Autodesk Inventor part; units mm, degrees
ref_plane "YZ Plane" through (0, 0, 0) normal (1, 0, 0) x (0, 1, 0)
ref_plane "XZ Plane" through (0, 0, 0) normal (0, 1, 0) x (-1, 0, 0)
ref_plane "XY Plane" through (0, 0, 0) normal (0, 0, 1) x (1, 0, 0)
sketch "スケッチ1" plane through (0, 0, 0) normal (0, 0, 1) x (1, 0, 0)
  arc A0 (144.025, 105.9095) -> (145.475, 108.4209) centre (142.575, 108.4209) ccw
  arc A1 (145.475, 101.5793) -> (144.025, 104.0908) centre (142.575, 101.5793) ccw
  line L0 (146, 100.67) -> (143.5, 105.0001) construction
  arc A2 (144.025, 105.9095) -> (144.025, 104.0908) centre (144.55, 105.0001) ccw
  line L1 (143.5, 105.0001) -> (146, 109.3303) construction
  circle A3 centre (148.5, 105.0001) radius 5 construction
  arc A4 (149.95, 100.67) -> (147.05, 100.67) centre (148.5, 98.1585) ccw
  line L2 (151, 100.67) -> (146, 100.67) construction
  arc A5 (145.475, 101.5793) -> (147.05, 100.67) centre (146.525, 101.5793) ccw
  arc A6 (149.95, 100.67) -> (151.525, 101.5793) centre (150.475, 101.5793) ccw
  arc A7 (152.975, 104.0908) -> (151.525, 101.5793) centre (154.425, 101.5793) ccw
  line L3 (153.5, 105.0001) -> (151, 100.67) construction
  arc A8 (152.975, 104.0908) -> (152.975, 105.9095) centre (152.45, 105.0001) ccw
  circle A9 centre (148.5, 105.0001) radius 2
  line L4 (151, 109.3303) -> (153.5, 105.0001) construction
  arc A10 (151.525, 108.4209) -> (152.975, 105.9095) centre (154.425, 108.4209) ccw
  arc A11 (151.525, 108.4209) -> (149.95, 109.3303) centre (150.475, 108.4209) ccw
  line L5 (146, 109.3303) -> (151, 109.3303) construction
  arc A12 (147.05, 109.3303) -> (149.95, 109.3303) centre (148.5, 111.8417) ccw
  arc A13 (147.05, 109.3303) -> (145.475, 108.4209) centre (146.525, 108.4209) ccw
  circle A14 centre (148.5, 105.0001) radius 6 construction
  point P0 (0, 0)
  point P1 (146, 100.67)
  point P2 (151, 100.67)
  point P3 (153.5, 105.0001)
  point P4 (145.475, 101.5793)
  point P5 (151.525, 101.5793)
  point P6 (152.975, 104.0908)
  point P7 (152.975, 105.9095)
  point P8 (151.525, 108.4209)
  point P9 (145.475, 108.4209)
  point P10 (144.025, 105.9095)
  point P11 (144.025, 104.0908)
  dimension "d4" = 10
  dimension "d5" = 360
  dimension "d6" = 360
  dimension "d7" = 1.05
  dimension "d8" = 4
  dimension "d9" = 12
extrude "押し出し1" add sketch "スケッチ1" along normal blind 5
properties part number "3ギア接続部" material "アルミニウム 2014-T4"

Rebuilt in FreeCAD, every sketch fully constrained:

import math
import FreeCAD as App
import Part
import Sketcher

V = App.Vector

doc = App.newDocument("Part")
body = doc.addObject("PartDesign::Body", "Body")

# Sketch on XY plane
sketch1 = body.newObject("Sketcher::SketchObject", "Sketch")
sketch1.AttachmentSupport = (doc.getObject("XY_Plane"), [""])
sketch1.MapMode = "FlatFace"
sketch1.addGeometry(Part.ArcOfCircle(Part.Circle(V(142.6, 108.4, 0), V(0, 0, 1), 2.9), math.radians(-60), math.radians(0)), False)
sketch1.addGeometry(Part.ArcOfCircle(Part.Circle(V(144.6, 105, 0), V(0, 0, 1), 1.1), math.radians(120), math.radians(240)), False)
sketch1.addGeometry(Part.ArcOfCircle(Part.Circle(V(142.6, 101.6, 0), V(0, 0, 1), 2.9), math.radians(0), math.radians(60)), False)
sketch1.addGeometry(Part.ArcOfCircle(Part.Circle(V(146.5, 101.6, 0), V(0, 0, 1), 1.1), math.radians(180), math.radians(300)), False)
sketch1.addGeometry(Part.ArcOfCircle(Part.Circle(V(148.5, 98.2, 0), V(0, 0, 1), 2.9), math.radians(60), math.radians(120)), False)
sketch1.addGeometry(Part.ArcOfCircle(Part.Circle(V(150.5, 101.6, 0), V(0, 0, 1), 1), math.radians(-120), math.radians(0)), False)
sketch1.addGeometry(Part.ArcOfCircle(Part.Circle(V(154.4, 101.6, 0), V(0, 0, 1), 2.9), math.radians(120), math.radians(180)), False)
sketch1.addGeometry(Part.ArcOfCircle(Part.Circle(V(152.4, 105, 0), V(0, 0, 1), 1), math.radians(-60), math.radians(60)), False)
sketch1.addGeometry(Part.ArcOfCircle(Part.Circle(V(154.4, 108.4, 0), V(0, 0, 1), 2.9), math.radians(180), math.radians(240)), False)
sketch1.addGeometry(Part.ArcOfCircle(Part.Circle(V(150.5, 108.4, 0), V(0, 0, 1), 1.1), math.radians(0), math.radians(120)), False)
sketch1.addGeometry(Part.ArcOfCircle(Part.Circle(V(148.5, 111.8, 0), V(0, 0, 1), 2.9), math.radians(-120), math.radians(-60)), False)
sketch1.addGeometry(Part.ArcOfCircle(Part.Circle(V(146.5, 108.4, 0), V(0, 0, 1), 1.1), math.radians(60), math.radians(180)), False)
sketch1.addGeometry(Part.Circle(V(148.5, 105, 0), V(0, 0, 1), 2), False)
sketch1.addConstraint(Sketcher.Constraint("Tangent", 0, 1, 1, 1))
sketch1.addConstraint(Sketcher.Constraint("Tangent", 1, 2, 2, 2))
sketch1.addConstraint(Sketcher.Constraint("Tangent", 2, 1, 3, 1))
sketch1.addConstraint(Sketcher.Constraint("Tangent", 3, 2, 4, 2))
sketch1.addConstraint(Sketcher.Constraint("Tangent", 4, 1, 5, 1))
sketch1.addConstraint(Sketcher.Constraint("Tangent", 5, 2, 6, 2))
sketch1.addConstraint(Sketcher.Constraint("Tangent", 6, 1, 7, 1))
sketch1.addConstraint(Sketcher.Constraint("Tangent", 7, 2, 8, 2))
sketch1.addConstraint(Sketcher.Constraint("Tangent", 8, 1, 9, 1))
sketch1.addConstraint(Sketcher.Constraint("Tangent", 9, 2, 10, 2))
sketch1.addConstraint(Sketcher.Constraint("Tangent", 10, 1, 11, 1))
sketch1.addConstraint(Sketcher.Constraint("Tangent", 11, 2, 0, 2))
sketch1.addConstraint(Sketcher.Constraint("Equal", 0, 2))
sketch1.addConstraint(Sketcher.Constraint("Equal", 1, 3))
sketch1.addConstraint(Sketcher.Constraint("Equal", 2, 4))
sketch1.addConstraint(Sketcher.Constraint("Equal", 3, 5))
sketch1.addConstraint(Sketcher.Constraint("Equal", 4, 6))
sketch1.addConstraint(Sketcher.Constraint("Equal", 5, 7))
sketch1.addConstraint(Sketcher.Constraint("Equal", 6, 8))
sketch1.addConstraint(Sketcher.Constraint("Equal", 7, 9))
sketch1.addConstraint(Sketcher.Constraint("Equal", 8, 10))
sketch1.addConstraint(Sketcher.Constraint("Equal", 9, 11))
sketch1.addConstraint(Sketcher.Constraint("Horizontal", 2, 3, 3, 3))
sketch1.addConstraint(Sketcher.Constraint("Horizontal", 3, 3, 5, 3))
sketch1.addConstraint(Sketcher.Constraint("Horizontal", 5, 3, 6, 3))
sketch1.addConstraint(Sketcher.Constraint("Horizontal", 1, 3, 7, 3))
sketch1.addConstraint(Sketcher.Constraint("Horizontal", 0, 3, 8, 3))
sketch1.addConstraint(Sketcher.Constraint("Horizontal", 8, 3, 9, 3))
sketch1.addConstraint(Sketcher.Constraint("Horizontal", 9, 3, 11, 3))
sketch1.addConstraint(Sketcher.Constraint("Horizontal", 7, 3, 12, 3))
sketch1.addConstraint(Sketcher.Constraint("Vertical", 0, 3, 2, 3))
sketch1.addConstraint(Sketcher.Constraint("Vertical", 10, 3, 12, 3))
sketch1.addConstraint(Sketcher.Constraint("Diameter", 12, 4.0))
sketch1.addConstraint(Sketcher.Constraint("Radius", 1, 1.05))
sketch1.addConstraint(Sketcher.Constraint("Radius", 0, 2.9))
sketch1.addConstraint(Sketcher.Constraint("DistanceY", -1, 1, 1, 3, 105.0))
sketch1.addConstraint(Sketcher.Constraint("DistanceX", -1, 1, 4, 3, 148.5))
sketch1.addConstraint(Sketcher.Constraint("DistanceX", 2, 3, 5, 3, 7.9))
sketch1.addConstraint(Sketcher.Constraint("DistanceX", 1, 3, 7, 3, 7.9))
pad1 = body.newObject("PartDesign::Pad", "Pad")
pad1.Profile = sketch1
pad1.Length = 5

doc.recompute()
